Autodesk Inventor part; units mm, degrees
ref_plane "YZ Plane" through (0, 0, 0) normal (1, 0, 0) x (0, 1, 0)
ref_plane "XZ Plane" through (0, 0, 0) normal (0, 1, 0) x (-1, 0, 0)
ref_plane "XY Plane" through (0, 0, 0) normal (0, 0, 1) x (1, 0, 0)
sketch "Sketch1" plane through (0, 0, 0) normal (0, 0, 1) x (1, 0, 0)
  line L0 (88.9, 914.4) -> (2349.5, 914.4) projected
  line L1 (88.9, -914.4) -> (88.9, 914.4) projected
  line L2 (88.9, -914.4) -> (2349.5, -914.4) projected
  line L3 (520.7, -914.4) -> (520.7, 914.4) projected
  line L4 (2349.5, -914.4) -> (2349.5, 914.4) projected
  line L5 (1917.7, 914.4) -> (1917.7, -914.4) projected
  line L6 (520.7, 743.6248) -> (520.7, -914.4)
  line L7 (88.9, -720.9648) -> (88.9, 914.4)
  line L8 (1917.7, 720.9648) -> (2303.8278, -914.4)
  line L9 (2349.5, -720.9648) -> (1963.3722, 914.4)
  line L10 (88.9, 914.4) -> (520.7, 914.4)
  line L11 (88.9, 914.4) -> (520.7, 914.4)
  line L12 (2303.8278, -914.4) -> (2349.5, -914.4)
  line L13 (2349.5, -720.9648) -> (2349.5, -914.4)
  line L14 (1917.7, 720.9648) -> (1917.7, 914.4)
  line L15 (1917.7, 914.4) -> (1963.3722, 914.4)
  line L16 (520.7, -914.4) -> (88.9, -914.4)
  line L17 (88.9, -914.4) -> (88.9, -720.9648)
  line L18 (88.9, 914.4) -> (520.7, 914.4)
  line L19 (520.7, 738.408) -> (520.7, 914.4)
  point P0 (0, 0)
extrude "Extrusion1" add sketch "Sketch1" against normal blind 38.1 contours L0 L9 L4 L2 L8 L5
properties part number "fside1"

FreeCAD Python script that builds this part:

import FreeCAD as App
import Part
import Sketcher
Q = App.Units.Quantity

doc = App.newDocument("Part")
body = doc.addObject("PartDesign::Body", "Body")

# Sketch on XY plane
sketch1 = body.newObject("Sketcher::SketchObject", "Sketch")
sketch1.AttachmentSupport = (doc.getObject("XY_Plane"), [""])
sketch1.MapMode = "FlatFace"
sketch1.addGeometry(Part.LineSegment(App.Vector(1963, 914, 0), App.Vector(1918, 914, 0)), False)
sketch1.addGeometry(Part.LineSegment(App.Vector(1918, 914, 0), App.Vector(1918, 721, 0)), False)
sketch1.addGeometry(Part.LineSegment(App.Vector(1918, 721, 0), App.Vector(2304, -914, 0)), False)
sketch1.addGeometry(Part.LineSegment(App.Vector(2304, -914, 0), App.Vector(2350, -914, 0)), False)
sketch1.addGeometry(Part.LineSegment(App.Vector(2350, -914, 0), App.Vector(2350, -721, 0)), False)
sketch1.addGeometry(Part.LineSegment(App.Vector(2350, -721, 0), App.Vector(1963, 914, 0)), False)
sketch1.addConstraint(Sketcher.Constraint("Coincident", 0, 2, 1, 1))
sketch1.addConstraint(Sketcher.Constraint("Coincident", 1, 2, 2, 1))
sketch1.addConstraint(Sketcher.Constraint("Coincident", 2, 2, 3, 1))
sketch1.addConstraint(Sketcher.Constraint("Coincident", 3, 2, 4, 1))
sketch1.addConstraint(Sketcher.Constraint("Coincident", 4, 2, 5, 1))
sketch1.addConstraint(Sketcher.Constraint("Coincident", 5, 2, 0, 1))
sketch1.addConstraint(Sketcher.Constraint("Horizontal", 0))
sketch1.addConstraint(Sketcher.Constraint("Vertical", 1))
sketch1.addConstraint(Sketcher.Constraint("Horizontal", 3))
sketch1.addConstraint(Sketcher.Constraint("Vertical", 4))
sketch1.addConstraint(Sketcher.Constraint("Parallel", 2, 5))
sketch1.addConstraint(Sketcher.Constraint("Equal", 0, 3))
sketch1.addConstraint(Sketcher.Constraint("DistanceY", -1, 1, 0, 2, Q("36 in")))
sketch1.addConstraint(Sketcher.Constraint("DistanceY", 2, 2, -1, 1, Q("36 in")))
sketch1.addConstraint(Sketcher.Constraint("DistanceX", 1, 2, 3, 2, Q("17 in")))
sketch1.addConstraint(Sketcher.Constraint("DistanceX", -1, 1, 0, 2, Q("75.5 in")))
sketch1.addConstraint(Sketcher.Constraint("DistanceX", 0, 2, 0, 1, Q("45.6722 mm")))
sketch1.addConstraint(Sketcher.Constraint("DistanceY", 1, 2, 1, 1, Q("193.4352 mm")))
pad1 = body.newObject("PartDesign::Pad", "Pad")
pad1.Profile = sketch1
pad1.Length = Q("1.5 in")
pad1.Reversed = True

doc.recompute()
